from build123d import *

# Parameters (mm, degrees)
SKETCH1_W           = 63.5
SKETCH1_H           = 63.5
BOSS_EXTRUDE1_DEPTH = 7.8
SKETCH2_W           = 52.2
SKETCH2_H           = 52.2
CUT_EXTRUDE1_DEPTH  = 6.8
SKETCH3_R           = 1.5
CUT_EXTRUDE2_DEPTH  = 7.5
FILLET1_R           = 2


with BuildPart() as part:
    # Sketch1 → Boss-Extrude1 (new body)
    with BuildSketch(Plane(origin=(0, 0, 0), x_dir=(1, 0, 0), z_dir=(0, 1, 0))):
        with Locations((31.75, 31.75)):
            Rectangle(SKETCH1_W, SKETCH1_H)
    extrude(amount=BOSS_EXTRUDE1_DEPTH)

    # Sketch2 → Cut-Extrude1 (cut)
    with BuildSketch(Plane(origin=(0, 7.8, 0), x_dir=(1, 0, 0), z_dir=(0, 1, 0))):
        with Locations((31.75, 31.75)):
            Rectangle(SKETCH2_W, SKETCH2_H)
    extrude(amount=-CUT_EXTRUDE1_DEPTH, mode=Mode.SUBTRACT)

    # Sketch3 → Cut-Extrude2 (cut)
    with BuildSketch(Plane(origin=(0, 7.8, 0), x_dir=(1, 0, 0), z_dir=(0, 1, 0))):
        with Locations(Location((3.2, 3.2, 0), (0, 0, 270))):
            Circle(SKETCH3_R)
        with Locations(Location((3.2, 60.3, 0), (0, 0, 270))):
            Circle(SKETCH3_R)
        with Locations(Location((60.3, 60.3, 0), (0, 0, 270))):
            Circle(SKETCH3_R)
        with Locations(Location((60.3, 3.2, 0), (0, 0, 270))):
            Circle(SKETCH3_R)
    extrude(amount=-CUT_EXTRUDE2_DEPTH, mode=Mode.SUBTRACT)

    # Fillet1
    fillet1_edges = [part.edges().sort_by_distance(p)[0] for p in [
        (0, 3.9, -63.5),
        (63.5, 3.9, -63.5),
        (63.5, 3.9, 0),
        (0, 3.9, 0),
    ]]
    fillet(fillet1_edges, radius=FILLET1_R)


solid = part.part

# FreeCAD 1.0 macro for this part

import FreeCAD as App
import Part
import Sketcher
from FreeCAD import Vector


def edges_at(feature, points):
    """Names of the edges that pass closest to the given points."""
    edges = feature.Shape.Edges
    near = lambda p: min(range(len(edges)), key=lambda i: edges[i].distToShape(Part.Vertex(*p))[0])
    return sorted({f"Edge{near(p) + 1}" for p in points})


def add_polygon(sketch, points):
    """Adds a closed chain of lines whose ends are joined by coincident constraints."""
    first, n = sketch.GeometryCount, len(points)
    for a, b in zip(points, points[1:] + points[:1]):
        sketch.addGeometry(Part.LineSegment(App.Vector(*a, 0), App.Vector(*b, 0)), False)
    for i in range(n):
        sketch.addConstraint(Sketcher.Constraint("Coincident", first + i, 2, first + (i + 1) % n, 1))

doc = App.newDocument("Part")
params = doc.addObject("Spreadsheet::Sheet", "Params")
for row, (alias, value) in enumerate([
    ("sketch1_width", "63.5 mm"),
    ("pad1_length", "7.8 mm"),
    ("sketch2_width", "52.2 mm"),
    ("pocket1_length", "6.8 mm"),
    ("sketch3_diameter", "3 mm"),
    ("pocket2_length", "7.5 mm"),
    ("fillet_radius", "2 mm"),
], start=1):
    params.set(f"A{row}", alias)
    params.set(f"B{row}", "=" + value)
    params.setAlias(f"B{row}", alias)

body = doc.addObject("PartDesign::Body", "Body")

sketch1 = body.newObject("Sketcher::SketchObject", "Sketch")
sketch1.AttachmentSupport = (doc.getObject("XZ_Plane"), [""])
sketch1.MapMode = "FlatFace"
add_polygon(sketch1, [(0, -64), (0, 0), (64, 0), (64, -64)])
sketch1.addConstraint([
    Sketcher.Constraint("Vertical", 0),
    Sketcher.Constraint("Horizontal", 1),
    Sketcher.Constraint("Vertical", 2),
    Sketcher.Constraint("Horizontal", 3),
    Sketcher.Constraint("Coincident", 0, 2, -1, 1),
    Sketcher.Constraint("Equal", 3, 0),
    Sketcher.Constraint("DistanceX", 1, 1, 1, 2, 63.5),
])
sketch1.setExpression("Constraints[10]", "Params.sketch1_width")
pad1 = body.newObject("PartDesign::Pad", "Pad")
pad1.Profile = sketch1
pad1.setExpression("Length", "Params.pad1_length")
pad1.Reversed = True

sketch2 = body.newObject("Sketcher::SketchObject", "Sketch001")
sketch2.AttachmentSupport = (doc.getObject("XZ_Plane"), [""])
sketch2.MapMode = "FlatFace"
sketch2.AttachmentOffset = App.Placement(Vector(0, 0, -7.8), App.Rotation())
add_polygon(sketch2, [(6, -58), (6, -6), (58, -6), (58, -58)])
sketch2.addConstraint([
    Sketcher.Constraint("Vertical", 0),
    Sketcher.Constraint("Horizontal", 1),
    Sketcher.Constraint("Vertical", 2),
    Sketcher.Constraint("Horizontal", 3),
    Sketcher.Constraint("Equal", 3, 0),
    Sketcher.Constraint("DistanceX", 1, 1, 1, 2, 52.2),
    Sketcher.Constraint("DistanceX", -1, 1, 0, 2, 5.65),
    Sketcher.Constraint("DistanceY", 0, 2, -1, 1, 5.65),
])
sketch2.setExpression("Constraints[9]", "Params.sketch2_width")
pocket1 = body.newObject("PartDesign::Pocket", "Pocket")
pocket1.Profile = sketch2
pocket1.setExpression("Length", "Params.pocket1_length")
pocket1.Reversed = True

sketch3 = body.newObject("Sketcher::SketchObject", "Sketch002")
sketch3.AttachmentSupport = (doc.getObject("XZ_Plane"), [""])
sketch3.MapMode = "FlatFace"
sketch3.AttachmentOffset = App.Placement(Vector(0, 0, -7.8), App.Rotation())
sketch3.addGeometry([
    Part.Circle(Vector(3.2, -3.2, 0), Vector(0, 0, 1), 1.5),
    Part.Circle(Vector(3.2, -60.3, 0), Vector(0, 0, 1), 1.5),
    Part.Circle(Vector(60.3, -60.3, 0), Vector(0, 0, 1), 1.5),
    Part.Circle(Vector(60.3, -3.2, 0), Vector(0, 0, 1), 1.5),
], False)
sketch3.addConstraint([
    Sketcher.Constraint("Equal", 0, 1),
    Sketcher.Constraint("Equal", 1, 2),
    Sketcher.Constraint("Equal", 2, 3),
    Sketcher.Constraint("Horizontal", 1, 3, 2, 3),
    Sketcher.Constraint("Horizontal", 0, 3, 3, 3),
    Sketcher.Constraint("Vertical", 0, 3, 1, 3),
    Sketcher.Constraint("Vertical", 2, 3, 3, 3),
    Sketcher.Constraint("Diameter", 0, 3.0),
    Sketcher.Constraint("DistanceX", -1, 1, 0, 3, 3.2),
    Sketcher.Constraint("DistanceY", 0, 3, -1, 1, 3.2),
    Sketcher.Constraint("DistanceY", 1, 3, -1, 1, 60.3),
    Sketcher.Constraint("DistanceX", -1, 1, 2, 3, 60.3),
])
sketch3.setExpression("Constraints[7]", "Params.sketch3_diameter")
pocket2 = body.newObject("PartDesign::Pocket", "Pocket001")
pocket2.Profile = sketch3
pocket2.setExpression("Length", "Params.pocket2_length")
pocket2.Reversed = True
doc.recompute()

fillet = body.newObject("PartDesign::Fillet", "Fillet")
fillet.Base = (pocket2, edges_at(pocket2, [
    (0, 3.9, -63.5),
    (63.5, 3.9, -63.5),
    (63.5, 3.9, 0),
    (0, 3.9, 0),
]))
fillet.setExpression("Radius", "Params.fillet_radius")

doc.recompute()
